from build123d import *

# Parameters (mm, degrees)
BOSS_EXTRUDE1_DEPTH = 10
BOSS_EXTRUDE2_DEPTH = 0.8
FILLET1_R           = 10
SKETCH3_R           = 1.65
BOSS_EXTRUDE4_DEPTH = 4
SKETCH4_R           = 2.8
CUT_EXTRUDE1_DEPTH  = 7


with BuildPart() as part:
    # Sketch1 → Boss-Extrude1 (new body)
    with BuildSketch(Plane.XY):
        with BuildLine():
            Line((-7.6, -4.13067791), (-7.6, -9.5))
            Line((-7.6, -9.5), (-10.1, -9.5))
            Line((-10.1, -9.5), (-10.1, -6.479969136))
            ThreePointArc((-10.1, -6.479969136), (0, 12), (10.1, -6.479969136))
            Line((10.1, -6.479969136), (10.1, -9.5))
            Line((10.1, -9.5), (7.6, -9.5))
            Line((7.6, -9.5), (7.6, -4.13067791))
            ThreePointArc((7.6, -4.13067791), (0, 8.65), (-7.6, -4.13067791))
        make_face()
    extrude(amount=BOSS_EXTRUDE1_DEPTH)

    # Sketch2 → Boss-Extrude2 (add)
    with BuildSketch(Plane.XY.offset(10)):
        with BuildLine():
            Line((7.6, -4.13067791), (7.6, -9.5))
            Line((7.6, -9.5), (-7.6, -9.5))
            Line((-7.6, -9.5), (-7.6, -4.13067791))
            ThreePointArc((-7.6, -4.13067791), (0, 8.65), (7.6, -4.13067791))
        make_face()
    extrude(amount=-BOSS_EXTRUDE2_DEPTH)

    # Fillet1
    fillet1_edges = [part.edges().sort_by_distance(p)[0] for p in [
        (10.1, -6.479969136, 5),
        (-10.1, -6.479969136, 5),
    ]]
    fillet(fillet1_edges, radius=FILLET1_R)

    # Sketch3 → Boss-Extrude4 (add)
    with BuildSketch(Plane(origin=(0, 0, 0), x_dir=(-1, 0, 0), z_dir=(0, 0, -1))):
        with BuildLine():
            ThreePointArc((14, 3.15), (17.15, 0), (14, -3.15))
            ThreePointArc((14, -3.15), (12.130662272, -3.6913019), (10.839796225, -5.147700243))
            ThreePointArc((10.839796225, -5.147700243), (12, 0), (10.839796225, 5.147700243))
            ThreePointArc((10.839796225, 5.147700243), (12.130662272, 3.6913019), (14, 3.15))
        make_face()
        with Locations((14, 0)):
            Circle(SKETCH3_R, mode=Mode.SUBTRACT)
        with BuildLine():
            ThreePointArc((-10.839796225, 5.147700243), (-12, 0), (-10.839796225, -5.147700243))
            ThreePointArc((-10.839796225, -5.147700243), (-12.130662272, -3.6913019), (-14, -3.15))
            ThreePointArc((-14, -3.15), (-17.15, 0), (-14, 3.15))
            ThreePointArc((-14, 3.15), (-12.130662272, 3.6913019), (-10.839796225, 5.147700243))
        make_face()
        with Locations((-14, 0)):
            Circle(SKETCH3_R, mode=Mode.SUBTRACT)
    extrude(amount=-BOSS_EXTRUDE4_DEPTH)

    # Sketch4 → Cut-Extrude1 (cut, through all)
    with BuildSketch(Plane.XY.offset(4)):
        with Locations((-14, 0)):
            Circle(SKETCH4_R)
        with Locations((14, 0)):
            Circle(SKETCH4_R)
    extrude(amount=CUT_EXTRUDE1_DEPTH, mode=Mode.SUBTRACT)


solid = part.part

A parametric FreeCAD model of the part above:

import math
import FreeCAD as App
import Part
import Sketcher


def edges_at(feature, points):
    """Names of the edges that pass closest to the given points."""
    edges = feature.Shape.Edges
    near = lambda p: min(range(len(edges)), key=lambda i: edges[i].distToShape(Part.Vertex(*p))[0])
    return sorted({f"Edge{near(p) + 1}" for p in points})

doc = App.newDocument("Part")
body = doc.addObject("PartDesign::Body", "Body")

# Sketch on XY plane
sketch1 = doc.addObject("Sketcher::SketchObject", "Sketch")
body.addObject(sketch1)
sketch1.AttachmentSupport = (doc.XY_Plane, [""])
sketch1.MapMode = "FlatFace"
sketch1.addGeometry([
    Part.LineSegment(App.Vector(-7.6, -9.5, 0), App.Vector(-7.6, -4.130678, 0)),  # 0
    Part.ArcOfCircle(Part.Circle(App.Vector(0, 0, 0), App.Vector(0, 0, 1), 8.65), math.radians(-28.524534), math.radians(208.524534)),  # 1
    Part.LineSegment(App.Vector(7.6, -4.130678, 0), App.Vector(7.6, -9.5, 0)),  # 2
    Part.LineSegment(App.Vector(7.6, -9.5, 0), App.Vector(10.1, -9.5, 0)),  # 3
    Part.LineSegment(App.Vector(10.1, -9.5, 0), App.Vector(10.1, -6.479969, 0)),  # 4
    Part.ArcOfCircle(Part.Circle(App.Vector(0, 0, 0), App.Vector(0, 0, 1), 12), math.radians(-32.683464), math.radians(212.683464)),  # 5
    Part.LineSegment(App.Vector(-10.1, -6.479969, 0), App.Vector(-10.1, -9.5, 0)),  # 6
    Part.LineSegment(App.Vector(-10.1, -9.5, 0), App.Vector(-7.6, -9.5, 0)),  # 7
], False)
sketch1.addConstraint([
    Sketcher.Constraint("Coincident", 0, 2, 1, 2),
    Sketcher.Constraint("Coincident", 1, 1, 2, 1),
    Sketcher.Constraint("Coincident", 2, 2, 3, 1),
    Sketcher.Constraint("Coincident", 3, 2, 4, 1),
    Sketcher.Constraint("Coincident", 4, 2, 5, 1),
    Sketcher.Constraint("Coincident", 5, 2, 6, 1),
    Sketcher.Constraint("Coincident", 6, 2, 7, 1),
    Sketcher.Constraint("Coincident", 7, 2, 0, 1),
    Sketcher.Constraint("Vertical", 0),
    Sketcher.Constraint("Vertical", 2),
    Sketcher.Constraint("Horizontal", 3),
    Sketcher.Constraint("Vertical", 4),
    Sketcher.Constraint("Vertical", 6),
    Sketcher.Constraint("Horizontal", 7),
    Sketcher.Constraint("Coincident", 1, 3, -1, 1),
    Sketcher.Constraint("Coincident", 5, 3, -1, 1),
    Sketcher.Constraint("Symmetric", 3, 2, 6, 2, -2),
    Sketcher.Constraint("Horizontal", 0, 2, 1, 1),
    Sketcher.Constraint("Radius", 5, 12.0),
    Sketcher.Constraint("Radius", 1, 8.65),
    Sketcher.Constraint("DistanceX", 3, 1, 3, 2, 2.5),
    Sketcher.Constraint("DistanceX", 0, 2, -1, 1, 7.6),
    Sketcher.Constraint("DistanceY", 2, 2, -1, 1, 9.5),
])
pad1 = doc.addObject("PartDesign::Pad", "Pad")
body.addObject(pad1)
pad1.Profile = sketch1
pad1.Length = 10

# Sketch on XY plane
sketch2 = doc.addObject("Sketcher::SketchObject", "Sketch001")
body.addObject(sketch2)
sketch2.AttachmentSupport = (doc.XY_Plane, [""])
sketch2.MapMode = "FlatFace"
sketch2.AttachmentOffset = App.Placement(App.Vector(0, 0, 10), App.Rotation())
sketch2.addGeometry([
    Part.LineSegment(App.Vector(7.6, -9.5, 0), App.Vector(7.6, -4.130678, 0)),
    Part.ArcOfCircle(Part.Circle(App.Vector(0, 0, 0), App.Vector(0, 0, 1), 8.65), math.radians(-28.524534), math.radians(208.524534)),
    Part.LineSegment(App.Vector(-7.6, -4.130678, 0), App.Vector(-7.6, -9.5, 0)),
    Part.LineSegment(App.Vector(-7.6, -9.5, 0), App.Vector(7.6, -9.5, 0)),
], False)
sketch2.addConstraint([
    Sketcher.Constraint("Coincident", 0, 2, 1, 1),
    Sketcher.Constraint("Coincident", 1, 2, 2, 1),
    Sketcher.Constraint("Coincident", 2, 2, 3, 1),
    Sketcher.Constraint("Coincident", 3, 2, 0, 1),
    Sketcher.Constraint("Vertical", 0),
    Sketcher.Constraint("Vertical", 2),
    Sketcher.Constraint("Horizontal", 3),
    Sketcher.Constraint("Coincident", 1, 3, -1, 1),
    Sketcher.Constraint("Horizontal", 0, 2, 1, 2),
    Sketcher.Constraint("Radius", 1, 8.65),
    Sketcher.Constraint("DistanceX", 3, 1, 3, 2, 15.2),
    Sketcher.Constraint("DistanceY", 2, 2, -1, 1, 9.5),
])
pad2 = doc.addObject("PartDesign::Pad", "Pad001")
body.addObject(pad2)
pad2.Profile = sketch2
pad2.Length = 0.8
pad2.Reversed = True
doc.recompute()

fillet = doc.addObject("PartDesign::Fillet", "Fillet")
body.addObject(fillet)
fillet.Base = (pad2, edges_at(pad2, [(10.1, -6.48, 5), (-10.1, -6.48, 5)]))
fillet.Radius = 10

# Sketch on XY plane
sketch3 = doc.addObject("Sketcher::SketchObject", "Sketch002")
body.addObject(sketch3)
sketch3.AttachmentSupport = (doc.XY_Plane, [""])
sketch3.MapMode = "FlatFace"
sketch3.addGeometry([
    Part.ArcOfCircle(Part.Circle(App.Vector(-14, 0, 0), App.Vector(0, 0, 1), 3.15), math.radians(90), math.radians(270)),  # 0
    Part.ArcOfCircle(Part.Circle(App.Vector(-14, 6.648446, 0), App.Vector(0, 0, 1), 3.498446), math.radians(-90), math.radians(-25.40253)),  # 1
    Part.ArcOfCircle(Part.Circle(App.Vector(0, 0, 0), App.Vector(0, 0, 1), 12), math.radians(154.59747), math.radians(205.40253)),  # 2
    Part.ArcOfCircle(Part.Circle(App.Vector(-14, -6.648446, 0), App.Vector(0, 0, 1), 3.498446), math.radians(25.40253), math.radians(90)),  # 3
    Part.Circle(App.Vector(-14, 0, 0), App.Vector(0, 0, 1), 1.65),  # 4
    Part.ArcOfCircle(Part.Circle(App.Vector(0, 0, 0), App.Vector(0, 0, 1), 12), math.radians(-25.40253), math.radians(25.40253)),  # 5
    Part.ArcOfCircle(Part.Circle(App.Vector(14, 6.648446, 0), App.Vector(0, 0, 1), 3.498446), math.radians(-154.59747), math.radians(-90)),  # 6
    Part.ArcOfCircle(Part.Circle(App.Vector(14, 0, 0), App.Vector(0, 0, 1), 3.15), math.radians(-90), math.radians(90)),  # 7
    Part.ArcOfCircle(Part.Circle(App.Vector(14, -6.648446, 0), App.Vector(0, 0, 1), 3.498446), math.radians(90), math.radians(154.59747)),  # 8
    Part.Circle(App.Vector(14, 0, 0), App.Vector(0, 0, 1), 1.65),  # 9
], False)
sketch3.addConstraint([
    Sketcher.Constraint("Tangent", 0, 1, 1, 1),
    Sketcher.Constraint("Tangent", 1, 2, 2, 1),
    Sketcher.Constraint("Tangent", 2, 2, 3, 1),
    Sketcher.Constraint("Tangent", 3, 2, 0, 2),
    Sketcher.Constraint("Tangent", 5, 2, 6, 1),
    Sketcher.Constraint("Tangent", 6, 2, 7, 2),
    Sketcher.Constraint("Tangent", 7, 1, 8, 1),
    Sketcher.Constraint("Tangent", 8, 2, 5, 1),
    Sketcher.Constraint("Coincident", 2, 3, -1, 1),
    Sketcher.Constraint("Coincident", 5, 3, -1, 1),
    Sketcher.Constraint("Coincident", 4, 3, 0, 3),
    Sketcher.Constraint("Coincident", 9, 3, 7, 3),
    Sketcher.Constraint("Equal", 1, 3),
    Sketcher.Constraint("Equal", 2, 5),
    Sketcher.Constraint("Equal", 3, 6),
    Sketcher.Constraint("Equal", 0, 7),
    Sketcher.Constraint("Equal", 6, 8),
    Sketcher.Constraint("Equal", 4, 9),
    Sketcher.Constraint("Symmetric", 0, 3, 7, 3, -1, 1),
    Sketcher.Constraint("PointOnObject", 0, 3, -1),
    Sketcher.Constraint("Vertical", 0, 3, 1, 3),
    Sketcher.Constraint("Radius", 2, 12.0),
    Sketcher.Constraint("Diameter", 4, 3.3),
    Sketcher.Constraint("Radius", 0, 3.15),
    Sketcher.Constraint("DistanceX", 0, 3, -1, 1, 14.0),
])
pad3 = doc.addObject("PartDesign::Pad", "Pad002")
body.addObject(pad3)
pad3.Profile = sketch3
pad3.Length = 4

# Sketch on XY plane
sketch4 = doc.addObject("Sketcher::SketchObject", "Sketch003")
body.addObject(sketch4)
sketch4.AttachmentSupport = (doc.XY_Plane, [""])
sketch4.MapMode = "FlatFace"
sketch4.AttachmentOffset = App.Placement(App.Vector(0, 0, 4), App.Rotation())
sketch4.addGeometry([
    Part.Circle(App.Vector(-14, 0, 0), App.Vector(0, 0, 1), 2.8),
    Part.Circle(App.Vector(14, 0, 0), App.Vector(0, 0, 1), 2.8),
], False)
sketch4.addConstraint([
    Sketcher.Constraint("Equal", 0, 1),
    Sketcher.Constraint("Symmetric", 0, 3, 1, 3, -1, 1),
    Sketcher.Constraint("PointOnObject", 0, 3, -1),
    Sketcher.Constraint("Diameter", 0, 5.6),
    Sketcher.Constraint("DistanceX", 0, 3, -1, 1, 14.0),
])
pocket1 = doc.addObject("PartDesign::Pocket", "Pocket")
body.addObject(pocket1)
pocket1.Profile = sketch4
pocket1.Type = "ThroughAll"
pocket1.Reversed = True

doc.recompute()
